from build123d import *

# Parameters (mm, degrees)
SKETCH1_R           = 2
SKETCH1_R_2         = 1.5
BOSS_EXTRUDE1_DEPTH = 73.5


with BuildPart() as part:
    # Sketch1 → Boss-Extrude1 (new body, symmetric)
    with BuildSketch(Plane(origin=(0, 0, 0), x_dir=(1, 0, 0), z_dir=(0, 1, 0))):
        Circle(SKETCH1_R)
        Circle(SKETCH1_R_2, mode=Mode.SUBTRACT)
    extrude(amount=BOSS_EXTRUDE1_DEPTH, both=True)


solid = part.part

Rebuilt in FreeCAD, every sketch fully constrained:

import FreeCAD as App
import Part
import Sketcher
from FreeCAD import Vector
Q = App.Units.Quantity

doc = App.newDocument("Part")
body = doc.addObject("PartDesign::Body", "Body")

sketch1 = doc.addObject("Sketcher::SketchObject", "Sketch")
body.addObject(sketch1)
sketch1.AttachmentSupport = (doc.XZ_Plane, [""])
sketch1.MapMode = "FlatFace"
sketch1.addGeometry(Part.Circle(Vector(0, 0, 0), Vector(0, 0, 1), 2), False)
sketch1.addGeometry(Part.Circle(Vector(0, 0, 0), Vector(0, 0, 1), 1.5), False)
sketch1.addConstraint(Sketcher.Constraint("Coincident", 0, 3, -1, 1))
sketch1.addConstraint(Sketcher.Constraint("Coincident", 1, 3, -1, 1))
sketch1.addConstraint(Sketcher.Constraint("Diameter", 0, Q("4 mm")))
sketch1.addConstraint(Sketcher.Constraint("Diameter", 1, Q("3 mm")))
pad1 = doc.addObject("PartDesign::Pad", "Pad")
body.addObject(pad1)
pad1.Profile = sketch1
pad1.Length = 147
pad1.Midplane = True

doc.recompute()
